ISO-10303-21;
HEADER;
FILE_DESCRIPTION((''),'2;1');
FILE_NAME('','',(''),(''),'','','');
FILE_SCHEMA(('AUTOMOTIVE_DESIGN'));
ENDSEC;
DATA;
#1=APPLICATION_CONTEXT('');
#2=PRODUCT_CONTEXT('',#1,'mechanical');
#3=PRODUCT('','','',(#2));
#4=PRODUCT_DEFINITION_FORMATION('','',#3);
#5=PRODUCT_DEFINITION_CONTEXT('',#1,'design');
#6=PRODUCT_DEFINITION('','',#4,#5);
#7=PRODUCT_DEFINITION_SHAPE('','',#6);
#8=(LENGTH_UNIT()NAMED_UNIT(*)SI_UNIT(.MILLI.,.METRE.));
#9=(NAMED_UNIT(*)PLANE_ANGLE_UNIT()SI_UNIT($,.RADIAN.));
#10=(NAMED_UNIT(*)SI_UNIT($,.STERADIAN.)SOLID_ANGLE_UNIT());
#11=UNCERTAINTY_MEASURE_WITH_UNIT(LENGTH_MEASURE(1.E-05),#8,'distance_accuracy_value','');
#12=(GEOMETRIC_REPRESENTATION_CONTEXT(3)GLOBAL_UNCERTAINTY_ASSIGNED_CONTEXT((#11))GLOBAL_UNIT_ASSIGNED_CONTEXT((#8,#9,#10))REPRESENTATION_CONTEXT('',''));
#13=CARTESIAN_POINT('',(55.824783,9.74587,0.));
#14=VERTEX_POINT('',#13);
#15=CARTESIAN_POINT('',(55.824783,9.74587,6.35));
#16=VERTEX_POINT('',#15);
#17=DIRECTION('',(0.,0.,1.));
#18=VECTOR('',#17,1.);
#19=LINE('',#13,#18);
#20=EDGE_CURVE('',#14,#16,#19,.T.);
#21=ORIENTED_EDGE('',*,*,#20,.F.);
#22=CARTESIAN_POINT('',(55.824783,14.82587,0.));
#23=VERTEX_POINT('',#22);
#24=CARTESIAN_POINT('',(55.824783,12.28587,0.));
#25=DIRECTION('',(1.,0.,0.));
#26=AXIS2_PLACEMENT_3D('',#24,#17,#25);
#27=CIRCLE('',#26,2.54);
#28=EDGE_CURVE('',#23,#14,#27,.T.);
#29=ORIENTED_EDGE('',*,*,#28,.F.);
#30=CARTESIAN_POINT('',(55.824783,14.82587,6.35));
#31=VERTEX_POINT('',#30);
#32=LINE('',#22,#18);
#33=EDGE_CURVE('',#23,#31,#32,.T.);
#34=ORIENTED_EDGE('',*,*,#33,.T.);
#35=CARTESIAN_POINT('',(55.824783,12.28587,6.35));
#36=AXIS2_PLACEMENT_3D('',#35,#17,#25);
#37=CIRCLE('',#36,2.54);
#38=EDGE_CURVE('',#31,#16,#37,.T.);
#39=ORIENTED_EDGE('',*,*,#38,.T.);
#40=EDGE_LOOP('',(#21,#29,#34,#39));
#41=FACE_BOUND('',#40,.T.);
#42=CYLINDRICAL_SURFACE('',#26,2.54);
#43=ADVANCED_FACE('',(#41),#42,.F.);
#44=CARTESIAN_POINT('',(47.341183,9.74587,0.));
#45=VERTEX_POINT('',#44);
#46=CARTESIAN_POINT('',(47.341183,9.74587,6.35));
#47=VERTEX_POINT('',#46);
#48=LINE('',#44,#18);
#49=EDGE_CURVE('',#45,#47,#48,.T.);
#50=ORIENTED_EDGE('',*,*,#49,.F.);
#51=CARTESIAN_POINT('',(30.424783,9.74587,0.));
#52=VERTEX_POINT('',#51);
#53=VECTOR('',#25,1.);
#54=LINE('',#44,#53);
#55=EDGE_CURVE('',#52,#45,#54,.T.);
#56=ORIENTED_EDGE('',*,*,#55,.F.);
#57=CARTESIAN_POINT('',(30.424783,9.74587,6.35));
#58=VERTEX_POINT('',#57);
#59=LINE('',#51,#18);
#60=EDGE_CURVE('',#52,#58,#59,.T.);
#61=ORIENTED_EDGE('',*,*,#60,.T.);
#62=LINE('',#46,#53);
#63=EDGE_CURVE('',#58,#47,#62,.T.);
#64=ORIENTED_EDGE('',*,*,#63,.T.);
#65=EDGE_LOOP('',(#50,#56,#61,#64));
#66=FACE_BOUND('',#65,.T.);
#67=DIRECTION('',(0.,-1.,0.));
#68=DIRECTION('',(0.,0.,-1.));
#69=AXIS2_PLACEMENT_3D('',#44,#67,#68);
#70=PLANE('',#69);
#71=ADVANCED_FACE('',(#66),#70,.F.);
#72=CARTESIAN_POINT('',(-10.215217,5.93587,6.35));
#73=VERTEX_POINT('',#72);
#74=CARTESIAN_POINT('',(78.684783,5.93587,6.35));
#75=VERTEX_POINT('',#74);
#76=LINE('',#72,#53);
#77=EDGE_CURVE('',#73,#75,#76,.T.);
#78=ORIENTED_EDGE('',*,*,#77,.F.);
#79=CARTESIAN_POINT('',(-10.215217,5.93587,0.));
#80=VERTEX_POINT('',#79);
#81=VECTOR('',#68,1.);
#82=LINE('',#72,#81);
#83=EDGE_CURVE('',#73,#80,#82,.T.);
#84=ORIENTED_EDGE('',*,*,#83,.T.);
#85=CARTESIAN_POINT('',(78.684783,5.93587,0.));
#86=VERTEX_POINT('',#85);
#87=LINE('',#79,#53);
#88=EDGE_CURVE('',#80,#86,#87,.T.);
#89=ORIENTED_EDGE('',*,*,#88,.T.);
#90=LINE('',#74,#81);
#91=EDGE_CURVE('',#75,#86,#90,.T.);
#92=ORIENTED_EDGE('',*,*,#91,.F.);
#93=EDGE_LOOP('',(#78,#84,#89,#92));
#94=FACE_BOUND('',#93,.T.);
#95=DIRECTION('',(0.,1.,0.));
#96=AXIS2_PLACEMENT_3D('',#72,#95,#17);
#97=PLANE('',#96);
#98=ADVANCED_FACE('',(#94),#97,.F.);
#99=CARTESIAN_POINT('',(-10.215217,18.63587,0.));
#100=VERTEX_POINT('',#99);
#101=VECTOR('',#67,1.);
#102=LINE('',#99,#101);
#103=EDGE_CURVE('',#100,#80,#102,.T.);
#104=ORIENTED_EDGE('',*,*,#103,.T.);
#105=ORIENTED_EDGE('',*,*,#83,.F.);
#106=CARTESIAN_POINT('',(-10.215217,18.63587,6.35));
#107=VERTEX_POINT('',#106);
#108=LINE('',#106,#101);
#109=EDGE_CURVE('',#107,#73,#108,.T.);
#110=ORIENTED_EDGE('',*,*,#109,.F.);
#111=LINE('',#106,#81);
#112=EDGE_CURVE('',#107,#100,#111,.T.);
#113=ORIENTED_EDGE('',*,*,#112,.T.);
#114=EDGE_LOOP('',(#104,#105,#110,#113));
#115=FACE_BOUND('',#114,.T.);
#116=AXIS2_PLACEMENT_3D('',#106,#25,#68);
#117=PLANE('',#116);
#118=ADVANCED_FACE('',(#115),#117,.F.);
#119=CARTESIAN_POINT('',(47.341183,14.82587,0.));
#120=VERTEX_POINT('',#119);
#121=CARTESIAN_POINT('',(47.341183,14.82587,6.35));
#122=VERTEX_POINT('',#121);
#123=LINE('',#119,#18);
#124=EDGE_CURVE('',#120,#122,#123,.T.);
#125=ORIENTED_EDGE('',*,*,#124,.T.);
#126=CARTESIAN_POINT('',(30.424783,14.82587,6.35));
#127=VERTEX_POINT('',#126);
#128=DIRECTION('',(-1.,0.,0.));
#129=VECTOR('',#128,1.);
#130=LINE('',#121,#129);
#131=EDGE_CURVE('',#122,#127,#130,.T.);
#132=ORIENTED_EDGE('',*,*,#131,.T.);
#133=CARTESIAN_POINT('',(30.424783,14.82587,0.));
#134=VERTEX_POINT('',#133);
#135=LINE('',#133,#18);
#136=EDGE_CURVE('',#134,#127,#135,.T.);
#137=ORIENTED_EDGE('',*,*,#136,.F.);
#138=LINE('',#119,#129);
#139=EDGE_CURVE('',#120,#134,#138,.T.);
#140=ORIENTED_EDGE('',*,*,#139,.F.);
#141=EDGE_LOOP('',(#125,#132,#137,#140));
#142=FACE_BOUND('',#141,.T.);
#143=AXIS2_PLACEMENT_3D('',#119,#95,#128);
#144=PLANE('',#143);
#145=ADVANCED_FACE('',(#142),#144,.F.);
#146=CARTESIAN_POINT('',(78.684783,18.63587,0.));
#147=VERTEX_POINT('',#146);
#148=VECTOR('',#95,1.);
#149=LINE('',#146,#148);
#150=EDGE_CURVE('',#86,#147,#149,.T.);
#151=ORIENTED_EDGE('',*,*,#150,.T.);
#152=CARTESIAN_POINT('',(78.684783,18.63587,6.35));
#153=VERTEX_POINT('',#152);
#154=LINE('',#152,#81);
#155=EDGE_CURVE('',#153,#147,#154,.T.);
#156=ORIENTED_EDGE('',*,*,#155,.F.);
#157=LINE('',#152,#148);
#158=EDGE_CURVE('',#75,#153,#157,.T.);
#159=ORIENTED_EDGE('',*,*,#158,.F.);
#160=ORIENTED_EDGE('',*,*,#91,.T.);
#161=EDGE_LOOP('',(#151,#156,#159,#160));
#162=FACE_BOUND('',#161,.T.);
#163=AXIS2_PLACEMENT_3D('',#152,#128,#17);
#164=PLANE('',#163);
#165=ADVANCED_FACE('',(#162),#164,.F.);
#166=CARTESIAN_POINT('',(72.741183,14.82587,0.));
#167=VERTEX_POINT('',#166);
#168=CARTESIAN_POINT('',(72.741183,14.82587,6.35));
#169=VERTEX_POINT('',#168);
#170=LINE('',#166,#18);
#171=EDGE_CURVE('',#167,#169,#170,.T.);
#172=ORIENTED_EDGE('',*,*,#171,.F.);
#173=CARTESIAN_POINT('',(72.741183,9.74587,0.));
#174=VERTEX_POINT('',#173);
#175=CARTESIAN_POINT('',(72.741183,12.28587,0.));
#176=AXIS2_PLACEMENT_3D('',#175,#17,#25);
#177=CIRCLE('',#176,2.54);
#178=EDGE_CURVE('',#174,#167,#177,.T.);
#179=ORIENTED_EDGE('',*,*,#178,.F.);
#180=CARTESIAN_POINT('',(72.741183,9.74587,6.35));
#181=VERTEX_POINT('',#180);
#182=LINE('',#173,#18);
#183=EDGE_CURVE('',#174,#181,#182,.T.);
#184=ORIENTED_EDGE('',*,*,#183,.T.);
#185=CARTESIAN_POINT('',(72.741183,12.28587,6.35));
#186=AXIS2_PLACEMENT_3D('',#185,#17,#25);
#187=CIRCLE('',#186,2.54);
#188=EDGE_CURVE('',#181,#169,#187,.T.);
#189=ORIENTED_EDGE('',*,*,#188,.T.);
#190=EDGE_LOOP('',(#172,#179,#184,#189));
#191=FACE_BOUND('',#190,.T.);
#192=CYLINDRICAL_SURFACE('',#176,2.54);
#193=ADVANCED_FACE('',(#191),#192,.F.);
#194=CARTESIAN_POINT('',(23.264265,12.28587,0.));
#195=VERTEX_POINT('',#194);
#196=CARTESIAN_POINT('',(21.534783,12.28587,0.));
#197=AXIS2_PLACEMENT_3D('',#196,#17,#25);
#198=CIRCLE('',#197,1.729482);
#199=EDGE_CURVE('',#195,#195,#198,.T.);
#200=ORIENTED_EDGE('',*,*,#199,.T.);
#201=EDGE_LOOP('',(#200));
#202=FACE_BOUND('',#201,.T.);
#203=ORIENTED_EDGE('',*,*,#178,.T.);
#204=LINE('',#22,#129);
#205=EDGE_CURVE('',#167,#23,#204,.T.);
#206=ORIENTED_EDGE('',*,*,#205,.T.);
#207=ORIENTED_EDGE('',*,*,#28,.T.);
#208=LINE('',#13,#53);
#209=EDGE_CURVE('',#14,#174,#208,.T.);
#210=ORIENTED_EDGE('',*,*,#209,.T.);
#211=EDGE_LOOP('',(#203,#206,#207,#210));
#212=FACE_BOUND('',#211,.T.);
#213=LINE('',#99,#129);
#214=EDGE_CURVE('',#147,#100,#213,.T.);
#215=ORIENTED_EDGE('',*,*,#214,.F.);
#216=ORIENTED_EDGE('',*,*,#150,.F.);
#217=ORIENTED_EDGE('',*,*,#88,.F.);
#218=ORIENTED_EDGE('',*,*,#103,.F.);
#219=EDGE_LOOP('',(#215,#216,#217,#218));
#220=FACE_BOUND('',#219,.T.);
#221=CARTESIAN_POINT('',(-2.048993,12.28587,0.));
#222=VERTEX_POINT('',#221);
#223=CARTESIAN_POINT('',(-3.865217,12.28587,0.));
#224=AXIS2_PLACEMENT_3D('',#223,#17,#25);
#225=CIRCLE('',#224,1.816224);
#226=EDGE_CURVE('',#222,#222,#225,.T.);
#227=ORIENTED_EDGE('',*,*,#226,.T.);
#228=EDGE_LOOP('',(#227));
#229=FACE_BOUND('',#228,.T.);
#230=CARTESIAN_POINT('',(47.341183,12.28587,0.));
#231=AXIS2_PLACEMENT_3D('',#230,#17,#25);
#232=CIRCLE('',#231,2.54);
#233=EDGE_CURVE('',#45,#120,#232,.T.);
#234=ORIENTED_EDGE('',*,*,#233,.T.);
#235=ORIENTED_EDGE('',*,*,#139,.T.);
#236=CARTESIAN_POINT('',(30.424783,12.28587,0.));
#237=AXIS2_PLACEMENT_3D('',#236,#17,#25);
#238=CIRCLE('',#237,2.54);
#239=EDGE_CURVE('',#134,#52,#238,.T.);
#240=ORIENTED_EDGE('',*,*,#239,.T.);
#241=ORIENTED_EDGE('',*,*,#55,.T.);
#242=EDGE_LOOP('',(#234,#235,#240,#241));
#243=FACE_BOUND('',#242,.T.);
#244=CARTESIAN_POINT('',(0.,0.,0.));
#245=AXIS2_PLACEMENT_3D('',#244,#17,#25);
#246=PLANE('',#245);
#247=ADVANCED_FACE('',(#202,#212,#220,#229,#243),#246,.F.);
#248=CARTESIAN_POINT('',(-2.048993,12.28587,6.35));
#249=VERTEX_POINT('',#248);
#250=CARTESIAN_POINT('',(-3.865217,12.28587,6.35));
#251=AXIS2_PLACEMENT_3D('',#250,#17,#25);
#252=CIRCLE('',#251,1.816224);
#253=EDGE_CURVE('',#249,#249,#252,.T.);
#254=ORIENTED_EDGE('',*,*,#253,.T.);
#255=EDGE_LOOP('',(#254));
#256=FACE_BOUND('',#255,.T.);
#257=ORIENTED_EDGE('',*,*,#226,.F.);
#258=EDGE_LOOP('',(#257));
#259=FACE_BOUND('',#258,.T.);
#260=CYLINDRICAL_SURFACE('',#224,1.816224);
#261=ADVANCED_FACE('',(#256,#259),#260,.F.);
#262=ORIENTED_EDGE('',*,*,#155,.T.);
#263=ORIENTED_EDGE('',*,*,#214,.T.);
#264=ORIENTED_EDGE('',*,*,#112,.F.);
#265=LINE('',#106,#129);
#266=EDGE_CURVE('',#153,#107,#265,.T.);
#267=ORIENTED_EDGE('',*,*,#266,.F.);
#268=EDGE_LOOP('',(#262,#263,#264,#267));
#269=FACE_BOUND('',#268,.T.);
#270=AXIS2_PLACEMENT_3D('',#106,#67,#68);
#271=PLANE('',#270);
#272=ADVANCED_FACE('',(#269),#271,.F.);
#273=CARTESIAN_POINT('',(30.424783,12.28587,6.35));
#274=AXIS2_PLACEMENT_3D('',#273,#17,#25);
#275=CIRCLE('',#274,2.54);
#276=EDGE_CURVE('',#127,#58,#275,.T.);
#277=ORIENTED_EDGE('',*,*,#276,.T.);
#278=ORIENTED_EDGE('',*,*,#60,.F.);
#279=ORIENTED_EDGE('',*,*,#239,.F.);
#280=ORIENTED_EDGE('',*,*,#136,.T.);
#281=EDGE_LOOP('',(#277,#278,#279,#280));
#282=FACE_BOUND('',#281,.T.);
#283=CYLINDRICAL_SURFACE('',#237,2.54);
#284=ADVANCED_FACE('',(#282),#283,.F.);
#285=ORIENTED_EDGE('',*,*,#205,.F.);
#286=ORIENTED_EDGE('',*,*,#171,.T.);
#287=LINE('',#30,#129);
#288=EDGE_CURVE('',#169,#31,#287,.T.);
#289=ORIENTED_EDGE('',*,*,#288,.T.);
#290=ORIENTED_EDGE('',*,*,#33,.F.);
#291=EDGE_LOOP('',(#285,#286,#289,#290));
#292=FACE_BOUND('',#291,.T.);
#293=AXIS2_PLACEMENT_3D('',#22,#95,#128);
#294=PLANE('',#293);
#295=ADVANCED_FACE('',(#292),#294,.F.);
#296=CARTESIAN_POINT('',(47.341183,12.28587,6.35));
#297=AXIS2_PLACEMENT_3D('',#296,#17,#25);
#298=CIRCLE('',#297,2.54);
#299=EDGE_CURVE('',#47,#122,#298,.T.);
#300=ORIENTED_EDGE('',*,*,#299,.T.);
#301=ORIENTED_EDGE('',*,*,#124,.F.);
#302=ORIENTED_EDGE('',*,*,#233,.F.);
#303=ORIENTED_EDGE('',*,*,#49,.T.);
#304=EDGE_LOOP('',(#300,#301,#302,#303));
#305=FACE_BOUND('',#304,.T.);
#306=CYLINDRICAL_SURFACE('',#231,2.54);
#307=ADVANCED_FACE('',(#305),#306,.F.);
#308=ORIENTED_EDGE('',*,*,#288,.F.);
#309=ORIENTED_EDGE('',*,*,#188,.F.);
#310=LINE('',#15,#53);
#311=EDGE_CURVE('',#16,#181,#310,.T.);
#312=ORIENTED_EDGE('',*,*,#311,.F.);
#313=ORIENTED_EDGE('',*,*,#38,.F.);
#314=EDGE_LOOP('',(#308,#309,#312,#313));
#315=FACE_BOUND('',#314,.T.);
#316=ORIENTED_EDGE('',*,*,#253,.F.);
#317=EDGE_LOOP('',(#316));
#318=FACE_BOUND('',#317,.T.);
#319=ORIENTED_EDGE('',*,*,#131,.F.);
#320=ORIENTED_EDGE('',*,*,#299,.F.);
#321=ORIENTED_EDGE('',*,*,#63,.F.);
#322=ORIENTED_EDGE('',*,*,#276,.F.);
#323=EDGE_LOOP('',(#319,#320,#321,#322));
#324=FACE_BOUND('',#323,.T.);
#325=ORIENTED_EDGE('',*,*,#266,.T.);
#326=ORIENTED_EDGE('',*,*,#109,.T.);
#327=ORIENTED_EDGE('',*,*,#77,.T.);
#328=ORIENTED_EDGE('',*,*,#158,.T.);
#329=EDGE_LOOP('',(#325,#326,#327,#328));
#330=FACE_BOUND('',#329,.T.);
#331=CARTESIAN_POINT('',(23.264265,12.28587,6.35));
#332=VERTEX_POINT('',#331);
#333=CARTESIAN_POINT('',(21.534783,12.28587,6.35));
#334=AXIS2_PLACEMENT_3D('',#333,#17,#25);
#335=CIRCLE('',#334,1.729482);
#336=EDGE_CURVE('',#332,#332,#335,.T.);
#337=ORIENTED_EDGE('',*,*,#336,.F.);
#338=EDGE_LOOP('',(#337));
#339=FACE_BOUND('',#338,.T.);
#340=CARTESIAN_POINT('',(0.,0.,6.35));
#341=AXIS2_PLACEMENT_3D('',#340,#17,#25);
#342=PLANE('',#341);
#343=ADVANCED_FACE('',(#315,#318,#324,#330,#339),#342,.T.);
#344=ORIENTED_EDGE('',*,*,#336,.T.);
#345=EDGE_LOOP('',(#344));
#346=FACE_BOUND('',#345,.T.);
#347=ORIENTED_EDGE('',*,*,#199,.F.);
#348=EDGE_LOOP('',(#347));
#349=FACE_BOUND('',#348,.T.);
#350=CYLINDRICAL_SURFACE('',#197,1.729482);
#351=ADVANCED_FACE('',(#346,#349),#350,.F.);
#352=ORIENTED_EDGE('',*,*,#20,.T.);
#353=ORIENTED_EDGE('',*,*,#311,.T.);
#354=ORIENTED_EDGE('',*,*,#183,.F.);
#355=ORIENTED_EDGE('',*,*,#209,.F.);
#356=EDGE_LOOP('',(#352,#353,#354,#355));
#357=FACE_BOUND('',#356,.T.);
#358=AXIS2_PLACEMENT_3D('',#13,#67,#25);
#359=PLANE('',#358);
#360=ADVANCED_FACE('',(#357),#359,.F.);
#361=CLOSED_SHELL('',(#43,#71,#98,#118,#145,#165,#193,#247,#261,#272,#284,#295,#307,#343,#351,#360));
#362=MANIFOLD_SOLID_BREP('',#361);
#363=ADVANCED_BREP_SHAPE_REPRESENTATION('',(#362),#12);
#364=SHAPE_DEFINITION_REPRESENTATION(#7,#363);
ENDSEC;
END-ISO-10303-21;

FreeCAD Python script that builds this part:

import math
import FreeCAD as App
import Part
import Sketcher
from FreeCAD import Vector
Q = App.Units.Quantity

doc = App.newDocument("Part")
body = doc.addObject("PartDesign::Body", "Body")

sketch1 = body.newObject("Sketcher::SketchObject", "Sketch")
sketch1.AttachmentSupport = (doc.getObject("XY_Plane"), [""])
sketch1.MapMode = "FlatFace"
sketch1.addGeometry(Part.LineSegment(Vector(-10, 19, 0), Vector(-10, 6, 0)), False)
sketch1.addGeometry(Part.LineSegment(Vector(-10, 6, 0), Vector(79, 6, 0)), False)
sketch1.addGeometry(Part.LineSegment(Vector(79, 6, 0), Vector(79, 19, 0)), False)
sketch1.addGeometry(Part.LineSegment(Vector(79, 19, 0), Vector(-10, 19, 0)), False)
sketch1.addConstraint(Sketcher.Constraint("Coincident", 0, 2, 1, 1))
sketch1.addConstraint(Sketcher.Constraint("Coincident", 1, 2, 2, 1))
sketch1.addConstraint(Sketcher.Constraint("Coincident", 2, 2, 3, 1))
sketch1.addConstraint(Sketcher.Constraint("Coincident", 3, 2, 0, 1))
sketch1.addConstraint(Sketcher.Constraint("Vertical", 0))
sketch1.addConstraint(Sketcher.Constraint("Horizontal", 1))
sketch1.addConstraint(Sketcher.Constraint("Vertical", 2))
sketch1.addConstraint(Sketcher.Constraint("Horizontal", 3))
sketch1.addConstraint(Sketcher.Constraint("DistanceX", 1, 1, 1, 2, Q("3.5 in")))
sketch1.addConstraint(Sketcher.Constraint("DistanceY", 0, 2, 0, 1, Q("0.5 in")))
sketch1.addConstraint(Sketcher.Constraint("DistanceY", -1, 1, 0, 2, 5.93587))
sketch1.addConstraint(Sketcher.Constraint("DistanceX", 0, 2, -1, 1, 10.215217))
pad1 = body.newObject("PartDesign::Pad", "Pad")
pad1.Profile = sketch1
pad1.Length = Q("0.25 in")

sketch2 = body.newObject("Sketcher::SketchObject", "Sketch001")
sketch2.AttachmentSupport = (doc.getObject("XY_Plane"), [""])
sketch2.MapMode = "FlatFace"
sketch2.AttachmentOffset = App.Placement(Vector(0, 0, 0.25 * 25.4), App.Rotation())
sketch2.addGeometry(Part.Circle(Vector(21.5, 12.3, 0), Vector(0, 0, 1), 1.7), False)
sketch2.addGeometry(Part.Circle(Vector(-3.9, 12.3, 0), Vector(0, 0, 1), 1.8), False)
sketch2.addGeometry(Part.LineSegment(Vector(72.7, 14.8, 0), Vector(55.8, 14.8, 0)), False)
sketch2.addGeometry(Part.ArcOfCircle(Part.Circle(Vector(55.8, 12.3, 0), Vector(0, 0, 1), 2.5), math.radians(90), math.radians(270)), False)
sketch2.addGeometry(Part.LineSegment(Vector(55.8, 9.7, 0), Vector(72.7, 9.7, 0)), False)
sketch2.addGeometry(Part.ArcOfCircle(Part.Circle(Vector(72.7, 12.3, 0), Vector(0, 0, 1), 2.5), math.radians(-90), math.radians(90)), False)
sketch2.addGeometry(Part.LineSegment(Vector(30.4, 9.7, 0), Vector(47.3, 9.7, 0)), False)
sketch2.addGeometry(Part.ArcOfCircle(Part.Circle(Vector(47.3, 12.3, 0), Vector(0, 0, 1), 2.5), math.radians(-90), math.radians(90)), False)
sketch2.addGeometry(Part.LineSegment(Vector(47.3, 14.8, 0), Vector(30.4, 14.8, 0)), False)
sketch2.addGeometry(Part.ArcOfCircle(Part.Circle(Vector(30.4, 12.3, 0), Vector(0, 0, 1), 2.5), math.radians(90), math.radians(270)), False)
sketch2.addConstraint(Sketcher.Constraint("Tangent", 2, 2, 3, 1))
sketch2.addConstraint(Sketcher.Constraint("Tangent", 3, 2, 4, 1))
sketch2.addConstraint(Sketcher.Constraint("Tangent", 4, 2, 5, 1))
sketch2.addConstraint(Sketcher.Constraint("Tangent", 5, 2, 2, 1))
sketch2.addConstraint(Sketcher.Constraint("Tangent", 6, 2, 7, 1))
sketch2.addConstraint(Sketcher.Constraint("Tangent", 7, 2, 8, 1))
sketch2.addConstraint(Sketcher.Constraint("Tangent", 8, 2, 9, 1))
sketch2.addConstraint(Sketcher.Constraint("Tangent", 9, 2, 6, 1))
sketch2.addConstraint(Sketcher.Constraint("Horizontal", 2))
sketch2.addConstraint(Sketcher.Constraint("Horizontal", 4))
sketch2.addConstraint(Sketcher.Constraint("Horizontal", 6))
sketch2.addConstraint(Sketcher.Constraint("Horizontal", 8))
sketch2.addConstraint(Sketcher.Constraint("Equal", 5, 7))
sketch2.addConstraint(Sketcher.Constraint("Horizontal", 0, 3, 1, 3))
sketch2.addConstraint(Sketcher.Constraint("Horizontal", 1, 3, 3, 3))
sketch2.addConstraint(Sketcher.Constraint("Horizontal", 5, 3, 7, 3))
sketch2.addConstraint(Sketcher.Constraint("Equal", 4, 6))
sketch2.addConstraint(Sketcher.Constraint("Radius", 3, Q("0.1 in")))
sketch2.addConstraint(Sketcher.Constraint("DistanceX", 1, 3, 0, 3, Q("1 in")))
sketch2.addConstraint(Sketcher.Constraint("DistanceX", 7, 3, 5, 3, Q("1 in")))
sketch2.addConstraint(Sketcher.Constraint("DistanceX", 2, 2, 2, 1, Q("0.666 in")))
sketch2.addConstraint(Sketcher.Constraint("DistanceX", 0, 3, 3, 3, Q("1.35 in")))
sketch2.addConstraint(Sketcher.Constraint("Diameter", 1, 3.632449))
sketch2.addConstraint(Sketcher.Constraint("Diameter", 0, 3.458965))
sketch2.addConstraint(Sketcher.Constraint("DistanceY", -1, 1, 0, 3, 12.28587))
sketch2.addConstraint(Sketcher.Constraint("DistanceX", -1, 1, 0, 3, 21.534783))
pocket1 = body.newObject("PartDesign::Pocket", "Pocket")
pocket1.Profile = sketch2
pocket1.Length = Q("0.25 in")

doc.recompute()
